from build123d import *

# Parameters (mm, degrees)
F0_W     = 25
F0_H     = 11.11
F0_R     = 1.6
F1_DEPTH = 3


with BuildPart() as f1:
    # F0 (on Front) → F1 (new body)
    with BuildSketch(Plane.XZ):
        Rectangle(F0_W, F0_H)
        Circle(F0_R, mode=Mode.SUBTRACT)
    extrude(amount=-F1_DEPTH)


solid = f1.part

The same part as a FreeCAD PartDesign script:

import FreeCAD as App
import Part
import Sketcher
Q = App.Units.Quantity

doc = App.newDocument("Part")
body = doc.addObject("PartDesign::Body", "Body")

sketch1 = body.newObject("Sketcher::SketchObject", "Sketch")
sketch1.AttachmentSupport = (doc.getObject("XZ_Plane"), [""])
sketch1.MapMode = "FlatFace"
sketch1.addGeometry([
    Part.LineSegment(App.Vector(-12.5, 5.555, 0), App.Vector(-12.5, -5.555, 0)),
    Part.LineSegment(App.Vector(-12.5, -5.555, 0), App.Vector(12.5, -5.555, 0)),
    Part.LineSegment(App.Vector(12.5, -5.555, 0), App.Vector(12.5, 5.555, 0)),
    Part.LineSegment(App.Vector(12.5, 5.555, 0), App.Vector(-12.5, 5.555, 0)),
    Part.Circle(App.Vector(0, 0, 0), App.Vector(0, 0, 1), 1.6),
], False)
sketch1.addConstraint([
    Sketcher.Constraint("Coincident", 0, 2, 1, 1),
    Sketcher.Constraint("Coincident", 1, 2, 2, 1),
    Sketcher.Constraint("Coincident", 2, 2, 3, 1),
    Sketcher.Constraint("Coincident", 3, 2, 0, 1),
    Sketcher.Constraint("Vertical", 0),
    Sketcher.Constraint("Horizontal", 1),
    Sketcher.Constraint("Vertical", 2),
    Sketcher.Constraint("Horizontal", 3),
    Sketcher.Constraint("Coincident", 4, 3, -1, 1),
    Sketcher.Constraint("Symmetric", 0, 2, 2, 2, -1, 1),
    Sketcher.Constraint("Diameter", 4, Q("3.2 mm")),
    Sketcher.Constraint("DistanceX", 1, 1, 1, 2, Q("25 mm")),
    Sketcher.Constraint("DistanceY", 0, 2, 0, 1, Q("11.11 mm")),
])
pad1 = body.newObject("PartDesign::Pad", "Pad")
pad1.Profile = sketch1
pad1.Length = 3
pad1.Reversed = True

doc.recompute()
